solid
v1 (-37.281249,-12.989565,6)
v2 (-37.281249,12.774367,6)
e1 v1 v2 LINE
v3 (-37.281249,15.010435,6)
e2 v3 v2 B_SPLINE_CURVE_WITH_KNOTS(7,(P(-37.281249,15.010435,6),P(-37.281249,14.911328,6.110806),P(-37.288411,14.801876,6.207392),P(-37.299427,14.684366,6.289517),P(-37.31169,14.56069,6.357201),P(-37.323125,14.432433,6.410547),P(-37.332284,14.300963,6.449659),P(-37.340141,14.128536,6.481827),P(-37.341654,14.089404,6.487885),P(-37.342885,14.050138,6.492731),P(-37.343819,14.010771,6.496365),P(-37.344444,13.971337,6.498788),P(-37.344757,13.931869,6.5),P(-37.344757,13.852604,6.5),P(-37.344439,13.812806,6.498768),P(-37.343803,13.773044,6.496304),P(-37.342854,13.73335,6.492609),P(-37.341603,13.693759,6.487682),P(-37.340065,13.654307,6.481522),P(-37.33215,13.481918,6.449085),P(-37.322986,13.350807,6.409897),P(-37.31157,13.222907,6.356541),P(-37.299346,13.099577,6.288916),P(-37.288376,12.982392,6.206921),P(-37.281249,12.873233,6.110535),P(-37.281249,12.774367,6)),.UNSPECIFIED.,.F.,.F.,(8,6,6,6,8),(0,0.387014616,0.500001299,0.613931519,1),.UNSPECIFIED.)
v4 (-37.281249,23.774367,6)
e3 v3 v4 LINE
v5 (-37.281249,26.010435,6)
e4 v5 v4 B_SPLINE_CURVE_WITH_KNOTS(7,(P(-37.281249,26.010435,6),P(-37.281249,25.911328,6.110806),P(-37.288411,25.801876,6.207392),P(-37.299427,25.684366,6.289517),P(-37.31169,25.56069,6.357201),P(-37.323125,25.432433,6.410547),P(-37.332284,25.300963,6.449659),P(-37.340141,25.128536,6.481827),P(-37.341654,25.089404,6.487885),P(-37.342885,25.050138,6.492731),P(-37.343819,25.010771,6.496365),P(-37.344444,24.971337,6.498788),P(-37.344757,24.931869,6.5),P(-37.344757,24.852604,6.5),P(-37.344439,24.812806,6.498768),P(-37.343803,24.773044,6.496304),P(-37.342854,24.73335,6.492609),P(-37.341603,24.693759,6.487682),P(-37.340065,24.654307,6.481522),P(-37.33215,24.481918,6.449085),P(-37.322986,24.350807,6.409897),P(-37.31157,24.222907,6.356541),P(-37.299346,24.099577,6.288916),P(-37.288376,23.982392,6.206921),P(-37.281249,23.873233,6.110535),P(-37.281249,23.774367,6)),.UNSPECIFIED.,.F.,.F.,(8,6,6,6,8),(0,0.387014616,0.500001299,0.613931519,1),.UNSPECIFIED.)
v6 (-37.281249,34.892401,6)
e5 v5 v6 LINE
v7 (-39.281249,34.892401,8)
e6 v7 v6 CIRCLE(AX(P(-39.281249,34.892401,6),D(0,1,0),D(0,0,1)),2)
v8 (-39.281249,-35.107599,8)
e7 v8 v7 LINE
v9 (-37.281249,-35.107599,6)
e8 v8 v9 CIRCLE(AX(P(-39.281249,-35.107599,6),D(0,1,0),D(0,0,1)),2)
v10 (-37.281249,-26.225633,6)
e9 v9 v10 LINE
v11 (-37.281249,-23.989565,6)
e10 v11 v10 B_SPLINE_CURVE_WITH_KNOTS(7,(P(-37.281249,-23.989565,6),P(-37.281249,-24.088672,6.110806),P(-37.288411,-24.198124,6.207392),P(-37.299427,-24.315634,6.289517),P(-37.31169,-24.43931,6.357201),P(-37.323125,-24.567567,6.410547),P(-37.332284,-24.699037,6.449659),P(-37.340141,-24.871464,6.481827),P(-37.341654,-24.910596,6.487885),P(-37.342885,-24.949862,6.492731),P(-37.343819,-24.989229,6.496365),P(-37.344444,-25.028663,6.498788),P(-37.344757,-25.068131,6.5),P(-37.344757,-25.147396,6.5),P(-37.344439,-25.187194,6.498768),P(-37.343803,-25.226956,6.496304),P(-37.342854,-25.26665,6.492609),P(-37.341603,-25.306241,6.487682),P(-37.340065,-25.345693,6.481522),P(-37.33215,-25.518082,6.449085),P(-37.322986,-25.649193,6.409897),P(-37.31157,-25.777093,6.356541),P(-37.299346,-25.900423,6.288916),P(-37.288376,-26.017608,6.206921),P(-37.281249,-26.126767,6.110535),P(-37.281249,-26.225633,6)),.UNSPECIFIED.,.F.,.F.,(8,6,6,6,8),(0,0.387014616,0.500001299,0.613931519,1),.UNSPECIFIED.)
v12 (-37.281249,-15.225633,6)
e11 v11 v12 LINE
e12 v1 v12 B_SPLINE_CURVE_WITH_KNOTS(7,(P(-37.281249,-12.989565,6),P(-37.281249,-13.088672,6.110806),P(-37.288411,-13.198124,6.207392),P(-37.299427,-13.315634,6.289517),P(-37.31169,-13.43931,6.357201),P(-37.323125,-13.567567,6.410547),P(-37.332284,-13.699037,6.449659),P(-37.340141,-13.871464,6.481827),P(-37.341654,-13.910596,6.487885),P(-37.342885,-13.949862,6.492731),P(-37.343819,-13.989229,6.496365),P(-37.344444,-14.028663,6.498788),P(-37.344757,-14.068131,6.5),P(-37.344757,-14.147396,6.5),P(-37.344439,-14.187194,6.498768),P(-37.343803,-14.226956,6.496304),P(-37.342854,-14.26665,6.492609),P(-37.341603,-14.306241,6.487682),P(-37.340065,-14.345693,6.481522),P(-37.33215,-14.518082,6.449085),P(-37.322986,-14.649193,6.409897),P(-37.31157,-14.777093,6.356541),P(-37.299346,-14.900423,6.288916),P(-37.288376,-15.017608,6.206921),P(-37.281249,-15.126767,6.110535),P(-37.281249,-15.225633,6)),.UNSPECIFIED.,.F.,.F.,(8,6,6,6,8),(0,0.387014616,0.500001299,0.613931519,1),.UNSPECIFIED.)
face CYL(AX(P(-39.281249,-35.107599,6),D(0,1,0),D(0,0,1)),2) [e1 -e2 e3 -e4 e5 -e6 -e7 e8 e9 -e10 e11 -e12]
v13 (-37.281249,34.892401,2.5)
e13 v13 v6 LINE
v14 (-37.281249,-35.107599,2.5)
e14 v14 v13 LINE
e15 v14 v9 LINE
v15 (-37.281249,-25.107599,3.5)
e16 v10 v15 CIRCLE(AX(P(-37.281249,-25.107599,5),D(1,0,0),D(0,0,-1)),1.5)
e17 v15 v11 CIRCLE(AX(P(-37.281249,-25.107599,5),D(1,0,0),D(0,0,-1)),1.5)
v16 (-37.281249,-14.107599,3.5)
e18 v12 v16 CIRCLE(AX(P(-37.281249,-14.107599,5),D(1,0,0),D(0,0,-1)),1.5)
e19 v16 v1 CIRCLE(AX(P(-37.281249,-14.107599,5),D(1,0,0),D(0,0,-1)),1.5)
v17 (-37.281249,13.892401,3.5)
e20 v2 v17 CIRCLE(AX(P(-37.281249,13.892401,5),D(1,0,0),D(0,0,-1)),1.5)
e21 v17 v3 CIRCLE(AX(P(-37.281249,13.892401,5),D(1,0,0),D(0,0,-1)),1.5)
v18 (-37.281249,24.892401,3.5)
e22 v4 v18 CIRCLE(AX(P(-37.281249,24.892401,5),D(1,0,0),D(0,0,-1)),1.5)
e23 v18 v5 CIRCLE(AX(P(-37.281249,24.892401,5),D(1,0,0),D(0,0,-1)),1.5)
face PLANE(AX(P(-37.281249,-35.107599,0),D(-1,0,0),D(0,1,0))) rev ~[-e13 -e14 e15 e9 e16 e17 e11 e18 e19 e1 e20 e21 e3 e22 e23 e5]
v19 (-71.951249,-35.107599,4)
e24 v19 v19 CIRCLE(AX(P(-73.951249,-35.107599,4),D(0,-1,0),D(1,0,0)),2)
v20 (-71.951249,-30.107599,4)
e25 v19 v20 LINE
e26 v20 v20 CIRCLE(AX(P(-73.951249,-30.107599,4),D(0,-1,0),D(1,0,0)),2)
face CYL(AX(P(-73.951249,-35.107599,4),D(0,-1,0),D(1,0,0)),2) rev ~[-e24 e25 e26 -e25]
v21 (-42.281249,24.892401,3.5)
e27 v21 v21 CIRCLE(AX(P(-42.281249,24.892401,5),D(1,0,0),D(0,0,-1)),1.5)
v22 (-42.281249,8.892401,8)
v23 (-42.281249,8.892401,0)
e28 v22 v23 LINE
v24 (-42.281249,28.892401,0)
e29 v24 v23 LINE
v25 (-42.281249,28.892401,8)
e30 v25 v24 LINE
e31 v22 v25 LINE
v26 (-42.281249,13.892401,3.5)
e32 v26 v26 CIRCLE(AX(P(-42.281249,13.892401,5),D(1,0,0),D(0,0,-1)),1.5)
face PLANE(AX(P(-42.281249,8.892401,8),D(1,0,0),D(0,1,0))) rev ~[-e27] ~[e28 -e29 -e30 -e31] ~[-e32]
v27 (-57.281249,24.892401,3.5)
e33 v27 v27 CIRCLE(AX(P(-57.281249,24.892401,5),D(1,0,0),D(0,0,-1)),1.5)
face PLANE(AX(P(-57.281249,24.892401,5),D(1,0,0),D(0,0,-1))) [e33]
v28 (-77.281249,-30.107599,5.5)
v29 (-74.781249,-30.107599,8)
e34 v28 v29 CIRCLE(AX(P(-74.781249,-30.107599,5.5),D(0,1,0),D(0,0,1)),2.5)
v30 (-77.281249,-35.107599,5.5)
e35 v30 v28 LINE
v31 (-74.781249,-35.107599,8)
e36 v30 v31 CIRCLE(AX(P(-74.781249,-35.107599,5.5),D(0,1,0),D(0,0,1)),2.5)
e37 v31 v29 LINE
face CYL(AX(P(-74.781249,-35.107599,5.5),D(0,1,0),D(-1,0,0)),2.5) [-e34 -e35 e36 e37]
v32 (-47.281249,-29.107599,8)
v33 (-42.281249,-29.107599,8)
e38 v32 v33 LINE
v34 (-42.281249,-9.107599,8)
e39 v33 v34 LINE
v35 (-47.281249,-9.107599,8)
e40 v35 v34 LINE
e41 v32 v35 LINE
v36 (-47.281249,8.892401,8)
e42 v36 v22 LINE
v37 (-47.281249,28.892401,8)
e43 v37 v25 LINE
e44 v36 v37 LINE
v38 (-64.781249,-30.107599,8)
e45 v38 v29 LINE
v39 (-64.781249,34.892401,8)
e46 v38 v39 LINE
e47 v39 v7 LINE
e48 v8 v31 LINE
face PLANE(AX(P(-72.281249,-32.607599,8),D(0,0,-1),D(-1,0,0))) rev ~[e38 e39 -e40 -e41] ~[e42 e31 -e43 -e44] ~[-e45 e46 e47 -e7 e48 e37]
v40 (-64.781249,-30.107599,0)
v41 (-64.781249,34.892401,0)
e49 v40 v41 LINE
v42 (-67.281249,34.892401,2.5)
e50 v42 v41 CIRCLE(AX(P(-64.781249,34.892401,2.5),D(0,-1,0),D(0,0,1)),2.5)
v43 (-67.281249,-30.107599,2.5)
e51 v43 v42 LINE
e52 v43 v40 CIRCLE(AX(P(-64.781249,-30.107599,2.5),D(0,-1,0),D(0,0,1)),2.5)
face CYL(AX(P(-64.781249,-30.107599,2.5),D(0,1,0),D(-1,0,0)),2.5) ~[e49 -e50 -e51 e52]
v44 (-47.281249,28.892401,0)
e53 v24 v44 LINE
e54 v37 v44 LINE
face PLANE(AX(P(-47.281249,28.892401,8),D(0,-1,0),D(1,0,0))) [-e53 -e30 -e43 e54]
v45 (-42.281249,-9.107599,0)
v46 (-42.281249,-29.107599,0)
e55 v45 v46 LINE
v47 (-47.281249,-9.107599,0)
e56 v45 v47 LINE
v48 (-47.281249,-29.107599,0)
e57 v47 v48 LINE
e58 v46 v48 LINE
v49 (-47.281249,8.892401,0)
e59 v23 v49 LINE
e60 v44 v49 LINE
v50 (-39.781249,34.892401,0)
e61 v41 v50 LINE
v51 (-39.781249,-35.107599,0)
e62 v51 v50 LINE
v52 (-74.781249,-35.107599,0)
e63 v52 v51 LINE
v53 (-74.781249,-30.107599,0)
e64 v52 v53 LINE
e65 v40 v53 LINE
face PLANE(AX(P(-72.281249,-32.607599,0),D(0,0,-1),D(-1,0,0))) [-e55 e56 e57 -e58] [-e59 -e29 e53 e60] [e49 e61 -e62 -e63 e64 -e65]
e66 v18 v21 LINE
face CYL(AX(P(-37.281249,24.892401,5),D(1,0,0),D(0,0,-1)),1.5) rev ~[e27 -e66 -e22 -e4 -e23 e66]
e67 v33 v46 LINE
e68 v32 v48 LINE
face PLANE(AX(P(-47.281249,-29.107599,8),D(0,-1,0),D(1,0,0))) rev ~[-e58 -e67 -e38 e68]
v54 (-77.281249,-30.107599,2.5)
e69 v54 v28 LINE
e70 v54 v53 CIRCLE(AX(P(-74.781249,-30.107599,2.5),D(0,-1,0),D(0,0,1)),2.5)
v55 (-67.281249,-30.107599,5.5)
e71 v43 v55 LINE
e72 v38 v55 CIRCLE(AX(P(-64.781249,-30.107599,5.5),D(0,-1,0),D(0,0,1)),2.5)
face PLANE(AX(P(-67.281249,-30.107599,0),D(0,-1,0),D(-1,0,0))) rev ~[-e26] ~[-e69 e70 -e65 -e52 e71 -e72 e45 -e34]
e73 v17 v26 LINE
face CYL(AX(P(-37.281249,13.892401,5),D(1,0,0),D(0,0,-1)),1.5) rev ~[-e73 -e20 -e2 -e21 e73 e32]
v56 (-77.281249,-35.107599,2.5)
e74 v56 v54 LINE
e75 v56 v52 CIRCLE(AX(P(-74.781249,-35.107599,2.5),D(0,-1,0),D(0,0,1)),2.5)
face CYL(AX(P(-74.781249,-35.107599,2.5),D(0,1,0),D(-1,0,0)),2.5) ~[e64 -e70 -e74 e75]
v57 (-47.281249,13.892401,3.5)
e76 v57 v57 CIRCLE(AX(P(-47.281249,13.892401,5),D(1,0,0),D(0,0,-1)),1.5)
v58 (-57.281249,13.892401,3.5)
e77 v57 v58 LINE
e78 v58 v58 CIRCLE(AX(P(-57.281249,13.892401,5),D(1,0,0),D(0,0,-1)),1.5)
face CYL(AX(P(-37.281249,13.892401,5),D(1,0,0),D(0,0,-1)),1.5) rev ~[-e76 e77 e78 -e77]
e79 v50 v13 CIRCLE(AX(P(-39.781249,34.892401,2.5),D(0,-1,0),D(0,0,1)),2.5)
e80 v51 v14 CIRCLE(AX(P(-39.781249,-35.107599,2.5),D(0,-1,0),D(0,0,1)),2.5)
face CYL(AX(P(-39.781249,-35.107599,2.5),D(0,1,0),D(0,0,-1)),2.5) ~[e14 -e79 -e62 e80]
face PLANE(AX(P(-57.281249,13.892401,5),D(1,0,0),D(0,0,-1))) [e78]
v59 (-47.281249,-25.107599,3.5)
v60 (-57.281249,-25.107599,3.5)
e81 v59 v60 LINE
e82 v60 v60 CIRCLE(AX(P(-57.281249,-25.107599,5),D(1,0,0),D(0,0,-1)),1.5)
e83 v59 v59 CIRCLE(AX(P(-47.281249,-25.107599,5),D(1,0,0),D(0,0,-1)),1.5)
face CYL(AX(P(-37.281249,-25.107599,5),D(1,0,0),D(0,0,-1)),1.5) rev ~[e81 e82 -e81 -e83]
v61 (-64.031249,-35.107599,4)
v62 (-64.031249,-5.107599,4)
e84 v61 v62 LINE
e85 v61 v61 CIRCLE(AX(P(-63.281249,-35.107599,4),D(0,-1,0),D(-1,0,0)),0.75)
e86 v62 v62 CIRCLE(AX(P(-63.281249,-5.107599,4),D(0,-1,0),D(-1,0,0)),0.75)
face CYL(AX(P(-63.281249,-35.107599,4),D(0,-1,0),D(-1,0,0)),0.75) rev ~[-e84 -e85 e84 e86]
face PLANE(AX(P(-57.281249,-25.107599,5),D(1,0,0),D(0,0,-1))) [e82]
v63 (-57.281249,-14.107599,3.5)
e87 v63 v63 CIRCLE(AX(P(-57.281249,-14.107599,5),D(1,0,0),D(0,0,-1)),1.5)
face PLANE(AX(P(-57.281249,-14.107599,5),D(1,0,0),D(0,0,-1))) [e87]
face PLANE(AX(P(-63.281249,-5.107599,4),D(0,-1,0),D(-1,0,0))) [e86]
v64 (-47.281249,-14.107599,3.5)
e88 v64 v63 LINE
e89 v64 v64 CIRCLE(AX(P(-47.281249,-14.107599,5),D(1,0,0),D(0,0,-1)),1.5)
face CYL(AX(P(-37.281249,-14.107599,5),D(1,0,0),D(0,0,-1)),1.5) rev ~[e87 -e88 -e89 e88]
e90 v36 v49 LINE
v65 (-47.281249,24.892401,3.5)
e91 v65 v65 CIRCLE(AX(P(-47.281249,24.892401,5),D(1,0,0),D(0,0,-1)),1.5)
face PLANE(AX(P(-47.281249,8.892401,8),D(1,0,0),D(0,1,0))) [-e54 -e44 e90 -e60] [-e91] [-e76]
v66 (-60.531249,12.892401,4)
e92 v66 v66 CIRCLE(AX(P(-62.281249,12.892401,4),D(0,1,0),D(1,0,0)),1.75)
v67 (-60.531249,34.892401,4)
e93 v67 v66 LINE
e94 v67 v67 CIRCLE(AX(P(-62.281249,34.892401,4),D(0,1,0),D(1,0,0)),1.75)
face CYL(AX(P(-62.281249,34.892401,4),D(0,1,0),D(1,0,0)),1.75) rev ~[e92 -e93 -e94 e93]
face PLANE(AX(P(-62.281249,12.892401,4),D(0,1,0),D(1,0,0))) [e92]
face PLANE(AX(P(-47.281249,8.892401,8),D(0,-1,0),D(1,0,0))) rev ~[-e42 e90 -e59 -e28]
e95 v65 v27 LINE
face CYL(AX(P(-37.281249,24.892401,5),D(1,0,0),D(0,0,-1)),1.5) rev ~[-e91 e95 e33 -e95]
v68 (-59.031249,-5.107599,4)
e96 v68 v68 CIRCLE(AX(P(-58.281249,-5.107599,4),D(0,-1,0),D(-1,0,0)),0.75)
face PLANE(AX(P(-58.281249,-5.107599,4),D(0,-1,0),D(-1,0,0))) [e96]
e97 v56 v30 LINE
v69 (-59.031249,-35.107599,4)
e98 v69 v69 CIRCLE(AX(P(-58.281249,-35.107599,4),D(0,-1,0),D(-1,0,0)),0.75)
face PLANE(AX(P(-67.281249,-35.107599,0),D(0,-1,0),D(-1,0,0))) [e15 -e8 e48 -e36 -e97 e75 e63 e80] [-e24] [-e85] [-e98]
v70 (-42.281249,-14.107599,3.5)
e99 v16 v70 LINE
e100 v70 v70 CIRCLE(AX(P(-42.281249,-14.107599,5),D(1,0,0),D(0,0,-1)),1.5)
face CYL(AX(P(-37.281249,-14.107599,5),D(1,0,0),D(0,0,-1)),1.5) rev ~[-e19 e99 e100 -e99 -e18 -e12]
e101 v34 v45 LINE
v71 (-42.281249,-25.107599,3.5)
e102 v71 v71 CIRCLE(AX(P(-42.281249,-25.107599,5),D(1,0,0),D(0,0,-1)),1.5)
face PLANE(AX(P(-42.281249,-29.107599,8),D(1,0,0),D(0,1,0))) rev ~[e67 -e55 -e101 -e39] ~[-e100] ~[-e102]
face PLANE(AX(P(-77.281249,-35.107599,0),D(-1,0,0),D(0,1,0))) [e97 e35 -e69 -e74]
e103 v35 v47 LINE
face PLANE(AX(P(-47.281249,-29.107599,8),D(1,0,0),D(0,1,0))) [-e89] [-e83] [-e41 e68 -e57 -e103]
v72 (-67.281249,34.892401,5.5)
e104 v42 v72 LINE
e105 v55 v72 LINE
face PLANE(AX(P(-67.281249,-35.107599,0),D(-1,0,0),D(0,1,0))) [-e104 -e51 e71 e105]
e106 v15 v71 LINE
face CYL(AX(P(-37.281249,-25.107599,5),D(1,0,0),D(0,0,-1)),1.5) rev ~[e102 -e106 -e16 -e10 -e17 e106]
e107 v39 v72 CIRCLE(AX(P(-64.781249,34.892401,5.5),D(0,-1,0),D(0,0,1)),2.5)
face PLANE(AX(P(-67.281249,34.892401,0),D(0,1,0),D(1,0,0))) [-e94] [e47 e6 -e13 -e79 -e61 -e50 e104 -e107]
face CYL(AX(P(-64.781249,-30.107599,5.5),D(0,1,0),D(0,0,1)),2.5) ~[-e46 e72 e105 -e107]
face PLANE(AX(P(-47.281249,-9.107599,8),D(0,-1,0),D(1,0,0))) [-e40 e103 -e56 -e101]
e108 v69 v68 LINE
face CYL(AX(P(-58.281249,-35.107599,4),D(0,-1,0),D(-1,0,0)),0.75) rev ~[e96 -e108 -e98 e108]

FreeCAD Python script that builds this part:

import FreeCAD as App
import Part
import Sketcher
Q = App.Units.Quantity


def edges_at(feature, points):
    """Names of the edges that pass closest to the given points."""
    edges = feature.Shape.Edges
    near = lambda p: min(range(len(edges)), key=lambda i: edges[i].distToShape(Part.Vertex(*p))[0])
    return sorted({f"Edge{near(p) + 1}" for p in points})


def add_polygon(sketch, points):
    """Adds a closed chain of lines whose ends are joined by coincident constraints."""
    first, n = sketch.GeometryCount, len(points)
    for a, b in zip(points, points[1:] + points[:1]):
        sketch.addGeometry(Part.LineSegment(App.Vector(*a, 0), App.Vector(*b, 0)), False)
    for i in range(n):
        sketch.addConstraint(Sketcher.Constraint("Coincident", first + i, 2, first + (i + 1) % n, 1))

doc = App.newDocument("Part")
body = doc.addObject("PartDesign::Body", "Body")

sketch1 = body.newObject("Sketcher::SketchObject", "Sketch")
sketch1.AttachmentSupport = (doc.getObject("XY_Plane"), [""])
sketch1.MapMode = "FlatFace"
add_polygon(sketch1, [(-67, 35), (-67, -35), (-37, -35), (-37, 35)])
sketch1.addConstraint([
    Sketcher.Constraint("Vertical", 0),
    Sketcher.Constraint("Horizontal", 1),
    Sketcher.Constraint("Vertical", 2),
    Sketcher.Constraint("Horizontal", 3),
    Sketcher.Constraint("DistanceX", 1, 1, 1, 2, Q("30 mm")),
    Sketcher.Constraint("DistanceY", 0, 2, 0, 1, Q("70 mm")),
    Sketcher.Constraint("DistanceY", 0, 2, -1, 1, Q("35.107599 mm")),
    Sketcher.Constraint("DistanceX", 0, 2, -1, 1, Q("67.281249 mm")),
])
pad1 = body.newObject("PartDesign::Pad", "Pad")
pad1.Profile = sketch1
pad1.Length = 8

sketch2 = body.newObject("Sketcher::SketchObject", "Sketch001")
sketch2.AttachmentSupport = (doc.getObject("XZ_Plane"), [""])
sketch2.MapMode = "FlatFace"
sketch2.AttachmentOffset = App.Placement(App.Vector(0, 0, 35.107599), App.Rotation())
sketch2.addGeometry([
    Part.Circle(App.Vector(-58.3, 4, 0), App.Vector(0, 0, 1), 0.8),
    Part.Circle(App.Vector(-63.3, 4, 0), App.Vector(0, 0, 1), 0.8),
], False)
sketch2.addConstraint([
    Sketcher.Constraint("Equal", 0, 1),
    Sketcher.Constraint("Horizontal", 0, 3, 1, 3),
    Sketcher.Constraint("Diameter", 0, Q("1.5 mm")),
    Sketcher.Constraint("DistanceY", -1, 1, 0, 3, Q("4 mm")),
    Sketcher.Constraint("DistanceX", 1, 3, 0, 3, Q("5 mm")),
    Sketcher.Constraint("DistanceX", 0, 3, -1, 1, Q("58.281249 mm")),
])
pocket1 = body.newObject("PartDesign::Pocket", "Pocket")
pocket1.Profile = sketch2
pocket1.Length = 30
doc.recompute()

fillet = body.newObject("PartDesign::Fillet", "Fillet")
fillet.Base = (pocket1, edges_at(pocket1, [(-37.281, -0.108, 8)]))
fillet.Radius = 2

sketch3 = body.newObject("Sketcher::SketchObject", "Sketch002")
sketch3.AttachmentSupport = (doc.getObject("XY_Plane"), [""])
sketch3.MapMode = "FlatFace"
add_polygon(sketch3, [(-67.3, -30.1), (-67.3, -35.1), (-77.3, -35.1), (-77.3, -30.1)])
sketch3.addConstraint([
    Sketcher.Constraint("Vertical", 0),
    Sketcher.Constraint("Horizontal", 1),
    Sketcher.Constraint("Vertical", 2),
    Sketcher.Constraint("Horizontal", 3),
    Sketcher.Constraint("DistanceX", 1, 2, 1, 1, Q("10 mm")),
    Sketcher.Constraint("DistanceY", 0, 2, 0, 1, Q("5 mm")),
    Sketcher.Constraint("DistanceY", 0, 2, -1, 1, Q("35.107599 mm")),
    Sketcher.Constraint("DistanceX", 0, 2, -1, 1, Q("67.281249 mm")),
])
pad2 = body.newObject("PartDesign::Pad", "Pad001")
pad2.Profile = sketch3
pad2.Length = 8

sketch4 = body.newObject("Sketcher::SketchObject", "Sketch003")
sketch4.AttachmentSupport = (doc.getObject("XZ_Plane"), [""])
sketch4.MapMode = "FlatFace"
sketch4.AttachmentOffset = App.Placement(App.Vector(0, 0, 35.107599), App.Rotation())
sketch4.addGeometry(Part.Circle(App.Vector(-74, 4, 0), App.Vector(0, 0, 1), 2), False)
sketch4.addConstraint([
    Sketcher.Constraint("Diameter", 0, Q("4 mm")),
    Sketcher.Constraint("DistanceY", -1, 1, 0, 3, Q("4 mm")),
    Sketcher.Constraint("DistanceX", 0, 3, -1, 1, Q("73.951249 mm")),
])
pocket2 = body.newObject("PartDesign::Pocket", "Pocket001")
pocket2.Profile = sketch4
pocket2.Length = 8
doc.recompute()

fillet2 = body.newObject("PartDesign::Fillet", "Fillet001")
fillet2.Base = (pocket2, edges_at(pocket2, [(-67.281, 2.392, 8)]))
fillet2.Radius = 2.5
doc.recompute()

fillet3 = body.newObject("PartDesign::Fillet", "Fillet002")
fillet3.Base = (fillet2, edges_at(fillet2, [(-67.281, 2.392, 0)]))
fillet3.Radius = 2.5
doc.recompute()

fillet4 = body.newObject("PartDesign::Fillet", "Fillet003")
fillet4.Base = (fillet3, edges_at(fillet3, [(-77.281, -32.608, 8)]))
fillet4.Radius = 2.5
doc.recompute()

fillet5 = body.newObject("PartDesign::Fillet", "Fillet004")
fillet5.Base = (fillet4, edges_at(fillet4, [(-77.281, -32.608, 0)]))
fillet5.Radius = 2.5

sketch5 = body.newObject("Sketcher::SketchObject", "Sketch004")
sketch5.AttachmentSupport = (doc.getObject("XY_Plane"), [""])
sketch5.MapMode = "FlatFace"
sketch5.AttachmentOffset = App.Placement(App.Vector(0, 0, 8), App.Rotation())
add_polygon(sketch5, [(-47, 29), (-47, 9), (-42, 9), (-42, 29)])
add_polygon(sketch5, [(-47, -9), (-47, -29), (-42, -29), (-42, -9)])
sketch5.addConstraint([
    Sketcher.Constraint("Vertical", 0),
    Sketcher.Constraint("Horizontal", 1),
    Sketcher.Constraint("Vertical", 2),
    Sketcher.Constraint("Horizontal", 3),
    Sketcher.Constraint("Vertical", 4),
    Sketcher.Constraint("Horizontal", 5),
    Sketcher.Constraint("Vertical", 6),
    Sketcher.Constraint("Horizontal", 7),
    Sketcher.Constraint("Vertical", 3, 2, 4, 2),
    Sketcher.Constraint("Vertical", 2, 2, 5, 2),
    Sketcher.Constraint("Equal", 2, 4),
    Sketcher.Constraint("DistanceX", 1, 1, 1, 2, Q("5 mm")),
    Sketcher.Constraint("DistanceY", 0, 2, 0, 1, Q("20 mm")),
    Sketcher.Constraint("DistanceY", 4, 2, 0, 2, Q("38 mm")),
    Sketcher.Constraint("DistanceY", -1, 1, 0, 2, Q("8.892401 mm")),
    Sketcher.Constraint("DistanceX", 0, 2, -1, 1, Q("47.281249 mm")),
])
pocket3 = body.newObject("PartDesign::Pocket", "Pocket002")
pocket3.Profile = sketch5
pocket3.Type = "ThroughAll"
doc.recompute()

fillet6 = body.newObject("PartDesign::Fillet", "Fillet005")
fillet6.Base = (pocket3, edges_at(pocket3, [(-37.281, -0.108, 0)]))
fillet6.Radius = 2.5

sketch6 = body.newObject("Sketcher::SketchObject", "Sketch005")
sketch6.AttachmentSupport = (doc.getObject("YZ_Plane"), [""])
sketch6.MapMode = "FlatFace"
sketch6.AttachmentOffset = App.Placement(App.Vector(0, 0, -37.281249), App.Rotation())
sketch6.addGeometry([
    Part.Circle(App.Vector(-25.1, 5, 0), App.Vector(0, 0, 1), 1.5),
    Part.Circle(App.Vector(-14.1, 5, 0), App.Vector(0, 0, 1), 1.5),
    Part.Circle(App.Vector(24.9, 5, 0), App.Vector(0, 0, 1), 1.5),
    Part.Circle(App.Vector(13.9, 5, 0), App.Vector(0, 0, 1), 1.5),
], False)
sketch6.addConstraint([
    Sketcher.Constraint("Equal", 0, 1),
    Sketcher.Constraint("Equal", 1, 2),
    Sketcher.Constraint("Equal", 2, 3),
    Sketcher.Constraint("Horizontal", 0, 3, 1, 3),
    Sketcher.Constraint("Horizontal", 1, 3, 2, 3),
    Sketcher.Constraint("Horizontal", 2, 3, 3, 3),
    Sketcher.Constraint("Diameter", 0, Q("3 mm")),
    Sketcher.Constraint("DistanceY", -1, 1, 0, 3, Q("5 mm")),
    Sketcher.Constraint("DistanceX", 0, 3, 1, 3, Q("11 mm")),
    Sketcher.Constraint("DistanceX", 1, 3, 2, 3, Q("39 mm")),
    Sketcher.Constraint("DistanceX", 3, 3, 2, 3, Q("11 mm")),
    Sketcher.Constraint("DistanceX", 0, 3, -1, 1, Q("25.107599 mm")),
])
pocket4 = body.newObject("PartDesign::Pocket", "Pocket003")
pocket4.Profile = sketch6
pocket4.Length = 20

sketch7 = body.newObject("Sketcher::SketchObject", "Sketch006")
sketch7.AttachmentSupport = (doc.getObject("XZ_Plane"), [""])
sketch7.MapMode = "FlatFace"
sketch7.AttachmentOffset = App.Placement(App.Vector(0, 0, -34.892401), App.Rotation())
sketch7.addGeometry(Part.Circle(App.Vector(-62.3, 4, 0), App.Vector(0, 0, 1), 1.8), False)
sketch7.addConstraint([
    Sketcher.Constraint("Diameter", 0, Q("3.5 mm")),
    Sketcher.Constraint("DistanceY", -1, 1, 0, 3, Q("4 mm")),
    Sketcher.Constraint("DistanceX", 0, 3, -1, 1, Q("62.281249 mm")),
])
pocket5 = body.newObject("PartDesign::Pocket", "Pocket004")
pocket5.Profile = sketch7
pocket5.Length = 22
pocket5.Reversed = True

doc.recompute()
